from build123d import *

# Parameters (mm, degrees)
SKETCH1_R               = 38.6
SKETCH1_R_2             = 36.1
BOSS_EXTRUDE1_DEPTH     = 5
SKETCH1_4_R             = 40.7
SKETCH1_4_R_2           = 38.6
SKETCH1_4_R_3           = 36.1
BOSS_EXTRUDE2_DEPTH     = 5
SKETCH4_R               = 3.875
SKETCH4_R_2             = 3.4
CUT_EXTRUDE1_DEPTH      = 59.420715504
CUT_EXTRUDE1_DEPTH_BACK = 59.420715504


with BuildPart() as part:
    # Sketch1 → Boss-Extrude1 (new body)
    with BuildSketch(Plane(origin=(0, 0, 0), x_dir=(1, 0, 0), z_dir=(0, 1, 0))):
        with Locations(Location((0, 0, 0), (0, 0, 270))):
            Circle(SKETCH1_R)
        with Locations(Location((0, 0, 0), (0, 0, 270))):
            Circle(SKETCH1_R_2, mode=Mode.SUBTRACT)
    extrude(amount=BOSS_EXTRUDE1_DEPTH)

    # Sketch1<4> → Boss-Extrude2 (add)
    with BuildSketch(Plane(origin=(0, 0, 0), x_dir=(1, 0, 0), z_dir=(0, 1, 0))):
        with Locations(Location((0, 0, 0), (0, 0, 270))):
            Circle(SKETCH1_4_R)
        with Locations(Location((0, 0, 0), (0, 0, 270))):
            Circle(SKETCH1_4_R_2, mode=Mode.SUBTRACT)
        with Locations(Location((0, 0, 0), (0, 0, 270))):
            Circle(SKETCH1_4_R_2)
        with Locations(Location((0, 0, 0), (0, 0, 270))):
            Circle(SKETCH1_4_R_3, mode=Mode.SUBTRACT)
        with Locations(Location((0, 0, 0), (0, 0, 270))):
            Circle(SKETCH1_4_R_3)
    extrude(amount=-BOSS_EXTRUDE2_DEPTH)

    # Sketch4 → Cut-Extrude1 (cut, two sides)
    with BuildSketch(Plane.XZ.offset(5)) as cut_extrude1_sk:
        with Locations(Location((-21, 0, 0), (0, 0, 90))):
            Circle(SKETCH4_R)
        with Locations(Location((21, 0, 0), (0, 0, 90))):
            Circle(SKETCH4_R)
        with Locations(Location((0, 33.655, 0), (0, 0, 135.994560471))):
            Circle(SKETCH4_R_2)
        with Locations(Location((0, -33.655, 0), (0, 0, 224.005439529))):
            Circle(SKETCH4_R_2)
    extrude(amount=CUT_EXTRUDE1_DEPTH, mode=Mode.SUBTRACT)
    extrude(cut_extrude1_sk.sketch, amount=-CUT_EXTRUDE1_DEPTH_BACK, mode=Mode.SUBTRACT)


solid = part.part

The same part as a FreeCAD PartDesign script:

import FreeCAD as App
import Part
import Sketcher

V = App.Vector

doc = App.newDocument("Part")
body = doc.addObject("PartDesign::Body", "Body")

# Sketch on XZ plane
sketch1 = doc.addObject("Sketcher::SketchObject", "Sketch")
body.addObject(sketch1)
sketch1.AttachmentSupport = (doc.XZ_Plane, [""])
sketch1.MapMode = "FlatFace"
sketch1.addGeometry([
    Part.Circle(V(0, 0, 0), V(0, 0, 1), 39),
    Part.Circle(V(0, 0, 0), V(0, 0, 1), 36),
], False)
sketch1.addConstraint([
    Sketcher.Constraint("Coincident", 0, 3, -1, 1),
    Sketcher.Constraint("Coincident", 1, 3, -1, 1),
    Sketcher.Constraint("Diameter", 0, 77.2),
    Sketcher.Constraint("Diameter", 1, 72.2),
])
pad1 = doc.addObject("PartDesign::Pad", "Pad")
body.addObject(pad1)
pad1.Profile = sketch1
pad1.Length = 5
pad1.Reversed = True

# Sketch on XZ plane
sketch2 = doc.addObject("Sketcher::SketchObject", "Sketch001")
body.addObject(sketch2)
sketch2.AttachmentSupport = (doc.XZ_Plane, [""])
sketch2.MapMode = "FlatFace"
sketch2.addGeometry(Part.Circle(V(0, 0, 0), V(0, 0, 1), 41), False)
sketch2.addConstraint([
    Sketcher.Constraint("Coincident", 0, 3, -1, 1),
    Sketcher.Constraint("Diameter", 0, 81.4),
])
pad2 = doc.addObject("PartDesign::Pad", "Pad001")
body.addObject(pad2)
pad2.Profile = sketch2
pad2.Length = 5

# Sketch on XZ plane
sketch3 = doc.addObject("Sketcher::SketchObject", "Sketch002")
body.addObject(sketch3)
sketch3.AttachmentSupport = (doc.XZ_Plane, [""])
sketch3.MapMode = "FlatFace"
sketch3.AttachmentOffset = App.Placement(V(0, 0, 5), App.Rotation())
sketch3.addGeometry([
    Part.Circle(V(-21, 0, 0), V(0, 0, 1), 3.9),
    Part.Circle(V(21, 0, 0), V(0, 0, 1), 3.9),
    Part.Circle(V(0, 33.7, 0), V(0, 0, 1), 3.4),
    Part.Circle(V(0, -33.7, 0), V(0, 0, 1), 3.4),
], False)
sketch3.addConstraint([
    Sketcher.Constraint("Equal", 0, 1),
    Sketcher.Constraint("Equal", 2, 3),
    Sketcher.Constraint("Symmetric", 0, 3, 1, 3, -1, 1),
    Sketcher.Constraint("Symmetric", 2, 3, 3, 3, -1, 1),
    Sketcher.Constraint("PointOnObject", 0, 3, -1),
    Sketcher.Constraint("PointOnObject", 2, 3, -2),
    Sketcher.Constraint("Diameter", 2, 6.8),
    Sketcher.Constraint("Diameter", 0, 7.75),
    Sketcher.Constraint("DistanceX", 0, 3, -1, 1, 21.0),
    Sketcher.Constraint("DistanceY", 3, 3, 2, 3, 67.31),
])
pocket1 = doc.addObject("PartDesign::Pocket", "Pocket")
body.addObject(pocket1)
pocket1.Profile = sketch3
pocket1.Type = "ThroughAll"
pocket1.Midplane = True

doc.recompute()
